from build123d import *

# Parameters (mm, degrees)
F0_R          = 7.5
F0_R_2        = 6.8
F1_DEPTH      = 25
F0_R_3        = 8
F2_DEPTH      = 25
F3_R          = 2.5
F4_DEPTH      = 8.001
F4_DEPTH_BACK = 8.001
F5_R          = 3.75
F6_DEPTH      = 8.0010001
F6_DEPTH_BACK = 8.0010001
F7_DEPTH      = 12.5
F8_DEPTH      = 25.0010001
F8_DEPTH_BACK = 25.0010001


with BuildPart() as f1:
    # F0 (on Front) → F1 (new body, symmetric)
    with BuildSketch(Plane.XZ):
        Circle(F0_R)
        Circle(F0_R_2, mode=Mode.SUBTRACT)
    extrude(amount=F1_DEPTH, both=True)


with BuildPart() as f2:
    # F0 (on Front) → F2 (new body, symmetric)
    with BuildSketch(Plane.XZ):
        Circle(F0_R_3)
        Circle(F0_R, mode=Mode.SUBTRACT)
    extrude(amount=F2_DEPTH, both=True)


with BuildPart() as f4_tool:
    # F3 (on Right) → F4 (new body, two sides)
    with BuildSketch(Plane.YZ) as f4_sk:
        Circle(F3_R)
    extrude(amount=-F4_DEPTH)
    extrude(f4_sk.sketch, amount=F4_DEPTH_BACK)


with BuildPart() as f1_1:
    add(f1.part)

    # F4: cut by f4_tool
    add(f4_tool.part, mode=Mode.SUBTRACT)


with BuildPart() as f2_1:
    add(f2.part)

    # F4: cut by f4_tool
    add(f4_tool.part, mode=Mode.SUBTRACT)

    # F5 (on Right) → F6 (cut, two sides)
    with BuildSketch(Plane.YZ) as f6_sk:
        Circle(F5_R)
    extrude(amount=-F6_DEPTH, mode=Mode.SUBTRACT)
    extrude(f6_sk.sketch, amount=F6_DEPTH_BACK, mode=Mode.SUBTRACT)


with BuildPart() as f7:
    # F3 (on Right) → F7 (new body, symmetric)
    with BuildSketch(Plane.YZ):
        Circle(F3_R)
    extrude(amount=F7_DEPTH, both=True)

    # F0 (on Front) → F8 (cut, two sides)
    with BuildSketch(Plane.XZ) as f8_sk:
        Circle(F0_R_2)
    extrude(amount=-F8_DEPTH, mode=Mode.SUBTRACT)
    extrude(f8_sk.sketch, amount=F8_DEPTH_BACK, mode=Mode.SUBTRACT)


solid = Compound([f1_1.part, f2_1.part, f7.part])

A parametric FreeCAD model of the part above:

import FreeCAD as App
import Part
import Sketcher
from FreeCAD import Vector
Q = App.Units.Quantity

doc = App.newDocument("Part")
body = doc.addObject("PartDesign::Body", "Body")

# Sketch on XZ plane
sketch1 = body.newObject("Sketcher::SketchObject", "Sketch")
sketch1.AttachmentSupport = (doc.getObject("XZ_Plane"), [""])
sketch1.MapMode = "FlatFace"
sketch1.addGeometry([
    Part.Circle(Vector(0, 0, 0), Vector(0, 0, 1), 8),
    Part.Circle(Vector(0, 0, 0), Vector(0, 0, 1), 7),
], False)
sketch1.addConstraint([
    Sketcher.Constraint("Coincident", 0, 3, -1, 1),
    Sketcher.Constraint("Coincident", 1, 3, -1, 1),
    Sketcher.Constraint("Diameter", 0, Q("15 mm")),
    Sketcher.Constraint("Diameter", 1, Q("13.6 mm")),
])
pad1 = body.newObject("PartDesign::Pad", "Pad")
pad1.Profile = sketch1
pad1.Length = 50
pad1.Midplane = True
body2 = doc.addObject("PartDesign::Body", "Body001")

# Sketch on XZ plane
sketch2 = body2.newObject("Sketcher::SketchObject", "Sketch001")
sketch2.AttachmentSupport = (doc.getObject("XZ_Plane001"), [""])
sketch2.MapMode = "FlatFace"
sketch2.addGeometry([
    Part.Circle(Vector(0, 0, 0), Vector(0, 0, 1), 8),
    Part.Circle(Vector(0, 0, 0), Vector(0, 0, 1), 8),
], False)
sketch2.addConstraint([
    Sketcher.Constraint("Coincident", 0, 3, -1, 1),
    Sketcher.Constraint("Coincident", 1, 3, -1, 1),
    Sketcher.Constraint("Diameter", 0, Q("16 mm")),
    Sketcher.Constraint("Diameter", 1, Q("15 mm")),
])
pad2 = body2.newObject("PartDesign::Pad", "Pad001")
pad2.Profile = sketch2
pad2.Length = 50
pad2.Midplane = True
body3 = doc.addObject("PartDesign::Body", "Body002")

# Sketch on YZ plane
sketch3 = body3.newObject("Sketcher::SketchObject", "Sketch002")
sketch3.AttachmentSupport = (doc.getObject("YZ_Plane002"), [""])
sketch3.MapMode = "FlatFace"
sketch3.addGeometry(Part.Circle(Vector(0, 0, 0), Vector(0, 0, 1), 2.5), False)
sketch3.addConstraint([
    Sketcher.Constraint("Coincident", 0, 3, -1, 1),
    Sketcher.Constraint("Diameter", 0, Q("5 mm")),
])
pad3 = body3.newObject("PartDesign::Pad", "Pad002")
pad3.Profile = sketch3
pad3.Type = "TwoLengths"
pad3.Length = 8.001
pad3.Length2 = 8.001
pad3.Reversed = True
doc.recompute()

body4 = doc.addObject("PartDesign::Body", "Body003")
body4.BaseFeature = body3
boolean = body.newObject("PartDesign::Boolean", "Boolean")
boolean.Type = "Cut"
boolean.addObjects([body4])
doc.recompute()

boolean2 = body2.newObject("PartDesign::Boolean", "Boolean001")
boolean2.Type = "Cut"
boolean2.addObjects([body3])

# Sketch on YZ plane
sketch4 = body2.newObject("Sketcher::SketchObject", "Sketch003")
sketch4.AttachmentSupport = (doc.getObject("YZ_Plane001"), [""])
sketch4.MapMode = "FlatFace"
sketch4.addGeometry(Part.Circle(Vector(0, 0, 0), Vector(0, 0, 1), 3.8), False)
sketch4.addConstraint([
    Sketcher.Constraint("Coincident", 0, 3, -1, 1),
    Sketcher.Constraint("Diameter", 0, Q("7.5 mm")),
])
pocket1 = body2.newObject("PartDesign::Pocket", "Pocket")
pocket1.Profile = sketch4
pocket1.Type = "ThroughAll"
pocket1.Midplane = True
body5 = doc.addObject("PartDesign::Body", "Body004")
body5.AllowCompound = True

# Sketch on YZ plane
sketch5 = body5.newObject("Sketcher::SketchObject", "Sketch004")
sketch5.AttachmentSupport = (doc.getObject("YZ_Plane004"), [""])
sketch5.MapMode = "FlatFace"
sketch5.addGeometry(Part.Circle(Vector(0, 0, 0), Vector(0, 0, 1), 2.5), False)
sketch5.addConstraint([
    Sketcher.Constraint("Coincident", 0, 3, -1, 1),
    Sketcher.Constraint("Diameter", 0, Q("5 mm")),
])
pad4 = body5.newObject("PartDesign::Pad", "Pad003")
pad4.Profile = sketch5
pad4.Length = 25
pad4.Midplane = True

# Sketch on XZ plane
sketch6 = body5.newObject("Sketcher::SketchObject", "Sketch005")
sketch6.AttachmentSupport = (doc.getObject("XZ_Plane004"), [""])
sketch6.MapMode = "FlatFace"
sketch6.addGeometry(Part.Circle(Vector(0, 0, 0), Vector(0, 0, 1), 7), False)
sketch6.addConstraint([
    Sketcher.Constraint("Coincident", 0, 3, -1, 1),
    Sketcher.Constraint("Diameter", 0, Q("13.6 mm")),
])
pocket2 = body5.newObject("PartDesign::Pocket", "Pocket001")
pocket2.Profile = sketch6
pocket2.Type = "ThroughAll"
pocket2.Midplane = True

doc.recompute()
